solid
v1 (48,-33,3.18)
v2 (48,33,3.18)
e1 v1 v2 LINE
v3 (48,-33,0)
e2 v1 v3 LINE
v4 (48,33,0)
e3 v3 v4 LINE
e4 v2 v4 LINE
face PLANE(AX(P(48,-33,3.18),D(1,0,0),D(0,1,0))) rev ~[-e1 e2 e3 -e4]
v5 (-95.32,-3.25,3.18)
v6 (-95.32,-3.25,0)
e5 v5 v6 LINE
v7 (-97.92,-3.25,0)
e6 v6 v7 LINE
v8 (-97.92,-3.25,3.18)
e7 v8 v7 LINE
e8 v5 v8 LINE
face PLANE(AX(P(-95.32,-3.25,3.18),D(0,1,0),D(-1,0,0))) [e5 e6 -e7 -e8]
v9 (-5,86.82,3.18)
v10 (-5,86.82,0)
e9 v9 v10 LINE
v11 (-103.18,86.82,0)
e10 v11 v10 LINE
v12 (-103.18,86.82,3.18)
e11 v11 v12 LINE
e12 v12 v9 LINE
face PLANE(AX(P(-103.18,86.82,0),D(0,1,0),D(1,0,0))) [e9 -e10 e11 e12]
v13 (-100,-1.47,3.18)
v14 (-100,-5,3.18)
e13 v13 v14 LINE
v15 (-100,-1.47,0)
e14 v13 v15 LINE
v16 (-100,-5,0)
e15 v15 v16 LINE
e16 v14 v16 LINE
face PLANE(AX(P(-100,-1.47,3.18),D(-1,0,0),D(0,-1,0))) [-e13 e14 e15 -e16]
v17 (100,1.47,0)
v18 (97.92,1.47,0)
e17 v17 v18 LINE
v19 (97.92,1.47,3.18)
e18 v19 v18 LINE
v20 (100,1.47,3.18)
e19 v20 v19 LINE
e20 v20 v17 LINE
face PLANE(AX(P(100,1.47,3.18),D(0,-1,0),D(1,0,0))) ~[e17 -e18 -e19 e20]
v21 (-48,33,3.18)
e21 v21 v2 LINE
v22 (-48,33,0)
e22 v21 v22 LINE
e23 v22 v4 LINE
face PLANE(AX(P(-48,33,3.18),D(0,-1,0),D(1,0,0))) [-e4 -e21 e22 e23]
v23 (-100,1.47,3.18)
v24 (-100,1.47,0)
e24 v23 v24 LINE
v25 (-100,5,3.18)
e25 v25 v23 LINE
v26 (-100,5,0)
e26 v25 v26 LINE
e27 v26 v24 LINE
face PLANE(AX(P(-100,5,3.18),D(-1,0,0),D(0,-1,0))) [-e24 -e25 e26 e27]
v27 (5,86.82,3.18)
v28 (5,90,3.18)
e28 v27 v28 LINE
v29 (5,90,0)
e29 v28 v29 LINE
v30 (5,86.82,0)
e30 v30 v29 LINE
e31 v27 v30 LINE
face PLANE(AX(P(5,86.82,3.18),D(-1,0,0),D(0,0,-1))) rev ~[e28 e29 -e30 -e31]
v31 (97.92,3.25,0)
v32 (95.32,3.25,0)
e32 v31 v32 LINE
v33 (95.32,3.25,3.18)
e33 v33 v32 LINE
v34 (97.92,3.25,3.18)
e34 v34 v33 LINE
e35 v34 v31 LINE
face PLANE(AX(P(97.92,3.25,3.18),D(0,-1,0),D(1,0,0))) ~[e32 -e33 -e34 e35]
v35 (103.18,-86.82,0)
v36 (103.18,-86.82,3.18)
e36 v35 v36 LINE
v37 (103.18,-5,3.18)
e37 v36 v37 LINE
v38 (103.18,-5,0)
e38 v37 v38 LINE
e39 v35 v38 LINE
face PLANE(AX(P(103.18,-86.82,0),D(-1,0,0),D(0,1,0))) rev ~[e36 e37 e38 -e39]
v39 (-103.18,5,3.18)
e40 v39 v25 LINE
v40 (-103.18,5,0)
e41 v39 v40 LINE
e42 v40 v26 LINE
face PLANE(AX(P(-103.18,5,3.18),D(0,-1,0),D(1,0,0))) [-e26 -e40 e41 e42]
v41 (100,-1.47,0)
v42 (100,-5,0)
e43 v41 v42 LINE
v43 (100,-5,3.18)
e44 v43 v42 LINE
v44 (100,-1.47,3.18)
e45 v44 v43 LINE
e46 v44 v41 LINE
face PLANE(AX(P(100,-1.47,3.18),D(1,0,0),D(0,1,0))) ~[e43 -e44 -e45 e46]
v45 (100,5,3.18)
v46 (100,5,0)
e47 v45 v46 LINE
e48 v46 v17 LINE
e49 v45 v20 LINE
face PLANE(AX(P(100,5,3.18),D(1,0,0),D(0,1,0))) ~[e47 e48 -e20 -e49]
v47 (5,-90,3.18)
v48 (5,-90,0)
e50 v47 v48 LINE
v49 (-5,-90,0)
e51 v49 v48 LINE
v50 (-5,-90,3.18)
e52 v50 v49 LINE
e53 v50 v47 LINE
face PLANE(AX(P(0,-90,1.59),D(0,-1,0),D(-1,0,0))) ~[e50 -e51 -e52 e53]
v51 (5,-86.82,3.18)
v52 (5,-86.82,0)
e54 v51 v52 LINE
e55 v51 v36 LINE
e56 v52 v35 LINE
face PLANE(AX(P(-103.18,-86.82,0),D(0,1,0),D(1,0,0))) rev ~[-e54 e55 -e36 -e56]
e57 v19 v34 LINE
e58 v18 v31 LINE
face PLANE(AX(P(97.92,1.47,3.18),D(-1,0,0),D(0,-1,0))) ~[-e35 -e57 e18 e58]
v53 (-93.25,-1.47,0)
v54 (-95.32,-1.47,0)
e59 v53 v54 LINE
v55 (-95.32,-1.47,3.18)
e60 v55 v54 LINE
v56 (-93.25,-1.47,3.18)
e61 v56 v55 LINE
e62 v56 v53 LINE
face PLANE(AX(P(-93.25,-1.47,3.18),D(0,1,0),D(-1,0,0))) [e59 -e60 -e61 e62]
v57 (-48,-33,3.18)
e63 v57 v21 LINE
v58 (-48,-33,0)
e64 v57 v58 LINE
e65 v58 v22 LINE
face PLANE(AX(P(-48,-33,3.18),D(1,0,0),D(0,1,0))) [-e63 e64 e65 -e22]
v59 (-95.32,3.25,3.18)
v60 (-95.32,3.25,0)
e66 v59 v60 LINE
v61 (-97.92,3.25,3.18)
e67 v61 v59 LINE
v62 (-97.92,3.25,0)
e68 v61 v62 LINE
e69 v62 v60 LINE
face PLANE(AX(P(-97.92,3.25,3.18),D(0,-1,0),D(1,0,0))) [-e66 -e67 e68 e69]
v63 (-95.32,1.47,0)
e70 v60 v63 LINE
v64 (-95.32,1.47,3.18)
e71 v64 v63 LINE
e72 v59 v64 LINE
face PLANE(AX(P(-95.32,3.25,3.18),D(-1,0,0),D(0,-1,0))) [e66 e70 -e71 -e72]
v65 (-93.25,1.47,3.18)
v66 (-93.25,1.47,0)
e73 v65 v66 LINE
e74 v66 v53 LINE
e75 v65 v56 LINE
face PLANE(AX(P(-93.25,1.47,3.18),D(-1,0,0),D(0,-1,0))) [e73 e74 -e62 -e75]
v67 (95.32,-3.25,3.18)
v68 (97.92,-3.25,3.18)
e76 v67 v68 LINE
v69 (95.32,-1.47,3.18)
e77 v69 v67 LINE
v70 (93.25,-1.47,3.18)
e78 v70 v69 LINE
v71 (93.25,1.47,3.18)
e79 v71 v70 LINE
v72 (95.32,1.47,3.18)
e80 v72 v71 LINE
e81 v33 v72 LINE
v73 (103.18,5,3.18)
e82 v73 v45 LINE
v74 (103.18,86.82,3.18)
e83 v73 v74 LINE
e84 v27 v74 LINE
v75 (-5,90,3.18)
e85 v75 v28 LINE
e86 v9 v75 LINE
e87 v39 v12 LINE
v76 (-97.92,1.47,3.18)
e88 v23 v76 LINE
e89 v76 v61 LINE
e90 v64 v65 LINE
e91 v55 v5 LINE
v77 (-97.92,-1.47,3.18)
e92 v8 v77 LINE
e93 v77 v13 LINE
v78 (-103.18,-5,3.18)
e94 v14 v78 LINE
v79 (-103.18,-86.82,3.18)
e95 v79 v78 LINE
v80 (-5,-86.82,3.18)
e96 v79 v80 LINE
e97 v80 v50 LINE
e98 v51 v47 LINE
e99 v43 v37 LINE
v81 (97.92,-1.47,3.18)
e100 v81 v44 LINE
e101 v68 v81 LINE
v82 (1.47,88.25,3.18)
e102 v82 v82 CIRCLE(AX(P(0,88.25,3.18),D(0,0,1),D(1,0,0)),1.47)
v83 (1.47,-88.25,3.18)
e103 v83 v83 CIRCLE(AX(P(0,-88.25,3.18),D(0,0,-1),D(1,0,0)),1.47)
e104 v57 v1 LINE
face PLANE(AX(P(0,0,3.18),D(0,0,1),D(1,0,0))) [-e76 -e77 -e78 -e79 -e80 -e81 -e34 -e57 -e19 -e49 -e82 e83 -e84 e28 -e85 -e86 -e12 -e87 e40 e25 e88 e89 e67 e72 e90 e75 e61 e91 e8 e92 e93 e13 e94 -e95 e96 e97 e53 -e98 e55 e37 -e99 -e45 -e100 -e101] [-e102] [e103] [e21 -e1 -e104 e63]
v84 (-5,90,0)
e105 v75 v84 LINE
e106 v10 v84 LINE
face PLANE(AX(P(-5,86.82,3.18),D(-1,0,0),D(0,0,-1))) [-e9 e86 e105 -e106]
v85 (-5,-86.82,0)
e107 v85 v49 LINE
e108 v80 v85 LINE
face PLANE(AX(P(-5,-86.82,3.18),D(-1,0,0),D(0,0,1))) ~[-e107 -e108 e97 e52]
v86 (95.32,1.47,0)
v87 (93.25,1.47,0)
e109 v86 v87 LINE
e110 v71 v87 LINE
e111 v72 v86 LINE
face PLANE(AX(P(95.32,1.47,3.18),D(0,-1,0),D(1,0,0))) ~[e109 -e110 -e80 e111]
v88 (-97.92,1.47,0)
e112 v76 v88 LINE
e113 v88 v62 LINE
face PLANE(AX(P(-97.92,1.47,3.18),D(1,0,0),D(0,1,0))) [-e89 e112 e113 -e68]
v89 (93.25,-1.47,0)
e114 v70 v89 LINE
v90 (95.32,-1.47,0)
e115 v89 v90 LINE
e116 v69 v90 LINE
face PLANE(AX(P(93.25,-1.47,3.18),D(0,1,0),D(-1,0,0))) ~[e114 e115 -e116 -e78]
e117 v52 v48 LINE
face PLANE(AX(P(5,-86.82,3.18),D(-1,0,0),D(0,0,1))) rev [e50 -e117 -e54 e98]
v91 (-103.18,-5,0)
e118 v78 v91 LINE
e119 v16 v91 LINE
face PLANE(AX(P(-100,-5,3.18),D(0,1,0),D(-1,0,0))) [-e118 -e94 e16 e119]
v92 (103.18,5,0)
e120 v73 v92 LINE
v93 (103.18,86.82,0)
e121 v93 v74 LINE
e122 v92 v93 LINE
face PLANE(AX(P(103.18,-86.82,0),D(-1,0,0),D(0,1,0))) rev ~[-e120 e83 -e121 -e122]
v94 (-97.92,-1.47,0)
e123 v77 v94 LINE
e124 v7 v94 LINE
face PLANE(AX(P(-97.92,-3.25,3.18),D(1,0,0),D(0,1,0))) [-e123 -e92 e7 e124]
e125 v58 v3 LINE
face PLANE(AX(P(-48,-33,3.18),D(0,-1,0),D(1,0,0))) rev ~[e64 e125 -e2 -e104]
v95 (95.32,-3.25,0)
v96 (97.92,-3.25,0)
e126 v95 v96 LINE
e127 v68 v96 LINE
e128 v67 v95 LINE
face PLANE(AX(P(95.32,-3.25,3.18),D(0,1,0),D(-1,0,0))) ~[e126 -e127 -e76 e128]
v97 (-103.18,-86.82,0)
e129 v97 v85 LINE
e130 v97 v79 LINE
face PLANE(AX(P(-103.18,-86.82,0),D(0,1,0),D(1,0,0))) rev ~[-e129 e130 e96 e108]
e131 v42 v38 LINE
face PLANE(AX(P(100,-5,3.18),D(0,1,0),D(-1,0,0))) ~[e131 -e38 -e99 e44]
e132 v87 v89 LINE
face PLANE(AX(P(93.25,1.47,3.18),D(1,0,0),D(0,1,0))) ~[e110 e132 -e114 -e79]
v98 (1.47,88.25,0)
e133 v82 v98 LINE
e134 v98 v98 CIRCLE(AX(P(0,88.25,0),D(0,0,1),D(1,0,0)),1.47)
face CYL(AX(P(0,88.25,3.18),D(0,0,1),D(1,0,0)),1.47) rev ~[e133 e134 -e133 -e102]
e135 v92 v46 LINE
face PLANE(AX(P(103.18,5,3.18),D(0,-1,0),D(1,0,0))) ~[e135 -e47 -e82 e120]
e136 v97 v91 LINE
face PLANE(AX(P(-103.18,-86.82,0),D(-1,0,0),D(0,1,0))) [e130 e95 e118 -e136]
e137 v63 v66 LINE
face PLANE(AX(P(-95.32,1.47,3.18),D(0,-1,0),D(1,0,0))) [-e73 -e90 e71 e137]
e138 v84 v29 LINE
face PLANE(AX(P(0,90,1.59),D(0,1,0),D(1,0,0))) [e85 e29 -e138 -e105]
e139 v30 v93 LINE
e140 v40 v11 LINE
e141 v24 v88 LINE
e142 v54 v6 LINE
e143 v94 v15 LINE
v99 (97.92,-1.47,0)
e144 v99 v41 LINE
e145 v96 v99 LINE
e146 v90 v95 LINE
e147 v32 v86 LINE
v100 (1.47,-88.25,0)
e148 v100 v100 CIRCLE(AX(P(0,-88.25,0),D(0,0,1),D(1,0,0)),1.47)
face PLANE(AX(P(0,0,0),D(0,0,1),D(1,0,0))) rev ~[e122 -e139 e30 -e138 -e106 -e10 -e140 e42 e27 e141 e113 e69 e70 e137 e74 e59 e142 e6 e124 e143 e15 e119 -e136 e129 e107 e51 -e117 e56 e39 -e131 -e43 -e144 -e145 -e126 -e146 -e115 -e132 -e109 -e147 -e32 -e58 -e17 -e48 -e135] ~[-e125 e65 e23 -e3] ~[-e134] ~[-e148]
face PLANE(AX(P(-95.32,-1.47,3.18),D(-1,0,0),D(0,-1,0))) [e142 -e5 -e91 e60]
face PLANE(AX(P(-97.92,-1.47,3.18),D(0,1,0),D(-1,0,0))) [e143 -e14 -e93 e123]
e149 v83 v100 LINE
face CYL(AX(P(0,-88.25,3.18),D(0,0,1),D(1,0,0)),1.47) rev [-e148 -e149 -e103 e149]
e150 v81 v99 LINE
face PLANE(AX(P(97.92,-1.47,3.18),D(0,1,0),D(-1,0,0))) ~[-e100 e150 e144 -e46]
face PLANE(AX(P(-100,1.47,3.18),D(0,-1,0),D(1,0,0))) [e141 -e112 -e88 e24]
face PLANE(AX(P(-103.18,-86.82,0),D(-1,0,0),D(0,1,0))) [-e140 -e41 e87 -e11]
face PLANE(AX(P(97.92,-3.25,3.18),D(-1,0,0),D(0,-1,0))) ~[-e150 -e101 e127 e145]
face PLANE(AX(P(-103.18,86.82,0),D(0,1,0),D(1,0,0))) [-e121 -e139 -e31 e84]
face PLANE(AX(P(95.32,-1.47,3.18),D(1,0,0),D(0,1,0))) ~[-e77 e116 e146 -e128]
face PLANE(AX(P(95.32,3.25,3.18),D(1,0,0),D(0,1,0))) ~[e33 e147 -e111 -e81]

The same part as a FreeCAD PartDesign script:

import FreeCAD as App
import Part
import Sketcher
from FreeCAD import Vector


def add_polygon(sketch, points):
    """Adds a closed chain of lines whose ends are joined by coincident constraints."""
    first, n = sketch.GeometryCount, len(points)
    for a, b in zip(points, points[1:] + points[:1]):
        sketch.addGeometry(Part.LineSegment(App.Vector(*a, 0), App.Vector(*b, 0)), False)
    for i in range(n):
        sketch.addConstraint(Sketcher.Constraint("Coincident", first + i, 2, first + (i + 1) % n, 1))

doc = App.newDocument("Part")
body = doc.addObject("PartDesign::Body", "Body")

# Sketch on XY plane
sketch1 = doc.addObject("Sketcher::SketchObject", "Sketch")
body.addObject(sketch1)
sketch1.AttachmentSupport = (doc.XY_Plane, [""])
sketch1.MapMode = "FlatFace"
add_polygon(sketch1, [(-103, 87), (-103, -87), (103, -87), (103, 87)])  # lines 0-3
sketch1.addConstraint([
    Sketcher.Constraint("Vertical", 0),
    Sketcher.Constraint("Horizontal", 1),
    Sketcher.Constraint("Vertical", 2),
    Sketcher.Constraint("Horizontal", 3),
    Sketcher.Constraint("Symmetric", 0, 2, 2, 2, -1, 1),
    Sketcher.Constraint("DistanceX", 1, 1, 1, 2, 206.36),
    Sketcher.Constraint("DistanceY", 0, 2, 0, 1, 173.64),
])
pad1 = doc.addObject("PartDesign::Pad", "Pad")
body.addObject(pad1)
pad1.Profile = sketch1
pad1.Length = 3.18

# Sketch on XY plane
sketch2 = doc.addObject("Sketcher::SketchObject", "Sketch001")
body.addObject(sketch2)
sketch2.AttachmentSupport = (doc.XY_Plane, [""])
sketch2.MapMode = "FlatFace"
sketch2.AttachmentOffset = App.Placement(Vector(0, 0, 3.18), App.Rotation())
add_polygon(sketch2, [(-95.3, -3.2), (-95.3, -1.5), (-93.2, -1.5), (-93.2, 1.5), (-95.3, 1.5), (-95.3, 3.2), (-97.9, 3.2), (-97.9, 1.5), (-100, 1.5), (-100, 5), (-103.2, 5), (-103.2, -5), (-100, -5), (-100, -1.5), (-97.9, -1.5), (-97.9, -3.2)])  # lines 0-15
sketch2.addConstraint([
    Sketcher.Constraint("Vertical", 0),
    Sketcher.Constraint("Horizontal", 1),
    Sketcher.Constraint("Vertical", 2),
    Sketcher.Constraint("Horizontal", 3),
    Sketcher.Constraint("Vertical", 4),
    Sketcher.Constraint("Horizontal", 5),
    Sketcher.Constraint("Vertical", 6),
    Sketcher.Constraint("Horizontal", 7),
    Sketcher.Constraint("Vertical", 8),
    Sketcher.Constraint("Horizontal", 9),
    Sketcher.Constraint("Vertical", 10),
    Sketcher.Constraint("Horizontal", 11),
    Sketcher.Constraint("Vertical", 12),
    Sketcher.Constraint("Horizontal", 13),
    Sketcher.Constraint("Vertical", 14),
    Sketcher.Constraint("Horizontal", 15),
    Sketcher.Constraint("Symmetric", 0, 2, 3, 2, -1),
    Sketcher.Constraint("Symmetric", 8, 2, 11, 2, -1),
    Sketcher.Constraint("Symmetric", 6, 2, 13, 2, -1),
    Sketcher.Constraint("Horizontal", 3, 2, 6, 2),
    Sketcher.Constraint("Equal", 0, 4),
    Sketcher.Constraint("DistanceY", 10, 2, 10, 1, 10.0),
    Sketcher.Constraint("DistanceX", 5, 2, 5, 1, 2.6),
    Sketcher.Constraint("DistanceX", 7, 2, -1, 1, 100.0),
    Sketcher.Constraint("DistanceX", 1, 1, 1, 2, 2.07),
    Sketcher.Constraint("DistanceX", 7, 2, 7, 1, 2.08),
    Sketcher.Constraint("DistanceX", 9, 2, 9, 1, 3.18),
    Sketcher.Constraint("DistanceY", 0, 1, 0, 2, 1.78),
    Sketcher.Constraint("DistanceY", 2, 1, 2, 2, 2.94),
])
pocket1 = doc.addObject("PartDesign::Pocket", "Pocket")
body.addObject(pocket1)
pocket1.Profile = sketch2
pocket1.Type = "ThroughAll"

# Sketch on XZ plane
sketch3 = doc.addObject("Sketcher::SketchObject", "Sketch002")
body.addObject(sketch3)
sketch3.AttachmentSupport = (doc.XZ_Plane, [""])
sketch3.MapMode = "FlatFace"
sketch3.AttachmentOffset = App.Placement(Vector(0, 0, -86.82), App.Rotation())
add_polygon(sketch3, [(-5, 0), (-5, 3.2), (5, 3.2), (5, 0)])  # lines 0-3
sketch3.addConstraint([
    Sketcher.Constraint("Vertical", 0),
    Sketcher.Constraint("Horizontal", 1),
    Sketcher.Constraint("Vertical", 2),
    Sketcher.Constraint("Horizontal", 3),
    Sketcher.Constraint("Symmetric", 2, 2, 3, 2, -1, 1),
    Sketcher.Constraint("DistanceX", 1, 1, 1, 2, 10.0),
    Sketcher.Constraint("DistanceY", 0, 1, 0, 2, 3.18),
])
pad2 = doc.addObject("PartDesign::Pad", "Pad001")
body.addObject(pad2)
pad2.Profile = sketch3
pad2.Length = 3.18
pad2.Reversed = True

# Sketch on XY plane
sketch4 = doc.addObject("Sketcher::SketchObject", "Sketch003")
body.addObject(sketch4)
sketch4.AttachmentSupport = (doc.XY_Plane, [""])
sketch4.MapMode = "FlatFace"
sketch4.AttachmentOffset = App.Placement(Vector(0, 0, 3.18), App.Rotation())
sketch4.addGeometry(Part.Circle(Vector(0, 88.2, 0), Vector(0, 0, 1), 1.5), False)
sketch4.addConstraint([
    Sketcher.Constraint("PointOnObject", 0, 3, -2),
    Sketcher.Constraint("Diameter", 0, 2.94),
    Sketcher.Constraint("DistanceY", -1, 1, 0, 3, 88.25),
])
pocket2 = doc.addObject("PartDesign::Pocket", "Pocket001")
body.addObject(pocket2)
pocket2.Profile = sketch4
pocket2.Type = "ThroughAll"
doc.recompute()

mirrored = doc.addObject("PartDesign::Mirrored", "Mirrored")
body.addObject(mirrored)
mirrored.Originals = [pocket1]
mirrored.MirrorPlane = (doc.YZ_Plane, [""])
body.Tip = mirrored
doc.recompute()

mirrored2 = doc.addObject("PartDesign::Mirrored", "Mirrored001")
body.addObject(mirrored2)
mirrored2.Originals = [pad2, pocket2]
mirrored2.MirrorPlane = (doc.XZ_Plane, [""])
body.Tip = mirrored2

# Sketch on XY plane
sketch5 = doc.addObject("Sketcher::SketchObject", "Sketch004")
body.addObject(sketch5)
sketch5.AttachmentSupport = (doc.XY_Plane, [""])
sketch5.MapMode = "FlatFace"
sketch5.AttachmentOffset = App.Placement(Vector(0, 0, 3.18), App.Rotation())
add_polygon(sketch5, [(-48, 33), (-48, -33), (48, -33), (48, 33)])  # lines 0-3
sketch5.addConstraint([
    Sketcher.Constraint("Vertical", 0),
    Sketcher.Constraint("Horizontal", 1),
    Sketcher.Constraint("Vertical", 2),
    Sketcher.Constraint("Horizontal", 3),
    Sketcher.Constraint("Symmetric", 0, 2, 2, 2, -1, 1),
    Sketcher.Constraint("DistanceX", 1, 1, 1, 2, 96.0),
    Sketcher.Constraint("DistanceY", 0, 2, 0, 1, 66.0),
])
pocket3 = doc.addObject("PartDesign::Pocket", "Pocket002")
body.addObject(pocket3)
pocket3.Profile = sketch5
pocket3.Type = "ThroughAll"

doc.recompute()
